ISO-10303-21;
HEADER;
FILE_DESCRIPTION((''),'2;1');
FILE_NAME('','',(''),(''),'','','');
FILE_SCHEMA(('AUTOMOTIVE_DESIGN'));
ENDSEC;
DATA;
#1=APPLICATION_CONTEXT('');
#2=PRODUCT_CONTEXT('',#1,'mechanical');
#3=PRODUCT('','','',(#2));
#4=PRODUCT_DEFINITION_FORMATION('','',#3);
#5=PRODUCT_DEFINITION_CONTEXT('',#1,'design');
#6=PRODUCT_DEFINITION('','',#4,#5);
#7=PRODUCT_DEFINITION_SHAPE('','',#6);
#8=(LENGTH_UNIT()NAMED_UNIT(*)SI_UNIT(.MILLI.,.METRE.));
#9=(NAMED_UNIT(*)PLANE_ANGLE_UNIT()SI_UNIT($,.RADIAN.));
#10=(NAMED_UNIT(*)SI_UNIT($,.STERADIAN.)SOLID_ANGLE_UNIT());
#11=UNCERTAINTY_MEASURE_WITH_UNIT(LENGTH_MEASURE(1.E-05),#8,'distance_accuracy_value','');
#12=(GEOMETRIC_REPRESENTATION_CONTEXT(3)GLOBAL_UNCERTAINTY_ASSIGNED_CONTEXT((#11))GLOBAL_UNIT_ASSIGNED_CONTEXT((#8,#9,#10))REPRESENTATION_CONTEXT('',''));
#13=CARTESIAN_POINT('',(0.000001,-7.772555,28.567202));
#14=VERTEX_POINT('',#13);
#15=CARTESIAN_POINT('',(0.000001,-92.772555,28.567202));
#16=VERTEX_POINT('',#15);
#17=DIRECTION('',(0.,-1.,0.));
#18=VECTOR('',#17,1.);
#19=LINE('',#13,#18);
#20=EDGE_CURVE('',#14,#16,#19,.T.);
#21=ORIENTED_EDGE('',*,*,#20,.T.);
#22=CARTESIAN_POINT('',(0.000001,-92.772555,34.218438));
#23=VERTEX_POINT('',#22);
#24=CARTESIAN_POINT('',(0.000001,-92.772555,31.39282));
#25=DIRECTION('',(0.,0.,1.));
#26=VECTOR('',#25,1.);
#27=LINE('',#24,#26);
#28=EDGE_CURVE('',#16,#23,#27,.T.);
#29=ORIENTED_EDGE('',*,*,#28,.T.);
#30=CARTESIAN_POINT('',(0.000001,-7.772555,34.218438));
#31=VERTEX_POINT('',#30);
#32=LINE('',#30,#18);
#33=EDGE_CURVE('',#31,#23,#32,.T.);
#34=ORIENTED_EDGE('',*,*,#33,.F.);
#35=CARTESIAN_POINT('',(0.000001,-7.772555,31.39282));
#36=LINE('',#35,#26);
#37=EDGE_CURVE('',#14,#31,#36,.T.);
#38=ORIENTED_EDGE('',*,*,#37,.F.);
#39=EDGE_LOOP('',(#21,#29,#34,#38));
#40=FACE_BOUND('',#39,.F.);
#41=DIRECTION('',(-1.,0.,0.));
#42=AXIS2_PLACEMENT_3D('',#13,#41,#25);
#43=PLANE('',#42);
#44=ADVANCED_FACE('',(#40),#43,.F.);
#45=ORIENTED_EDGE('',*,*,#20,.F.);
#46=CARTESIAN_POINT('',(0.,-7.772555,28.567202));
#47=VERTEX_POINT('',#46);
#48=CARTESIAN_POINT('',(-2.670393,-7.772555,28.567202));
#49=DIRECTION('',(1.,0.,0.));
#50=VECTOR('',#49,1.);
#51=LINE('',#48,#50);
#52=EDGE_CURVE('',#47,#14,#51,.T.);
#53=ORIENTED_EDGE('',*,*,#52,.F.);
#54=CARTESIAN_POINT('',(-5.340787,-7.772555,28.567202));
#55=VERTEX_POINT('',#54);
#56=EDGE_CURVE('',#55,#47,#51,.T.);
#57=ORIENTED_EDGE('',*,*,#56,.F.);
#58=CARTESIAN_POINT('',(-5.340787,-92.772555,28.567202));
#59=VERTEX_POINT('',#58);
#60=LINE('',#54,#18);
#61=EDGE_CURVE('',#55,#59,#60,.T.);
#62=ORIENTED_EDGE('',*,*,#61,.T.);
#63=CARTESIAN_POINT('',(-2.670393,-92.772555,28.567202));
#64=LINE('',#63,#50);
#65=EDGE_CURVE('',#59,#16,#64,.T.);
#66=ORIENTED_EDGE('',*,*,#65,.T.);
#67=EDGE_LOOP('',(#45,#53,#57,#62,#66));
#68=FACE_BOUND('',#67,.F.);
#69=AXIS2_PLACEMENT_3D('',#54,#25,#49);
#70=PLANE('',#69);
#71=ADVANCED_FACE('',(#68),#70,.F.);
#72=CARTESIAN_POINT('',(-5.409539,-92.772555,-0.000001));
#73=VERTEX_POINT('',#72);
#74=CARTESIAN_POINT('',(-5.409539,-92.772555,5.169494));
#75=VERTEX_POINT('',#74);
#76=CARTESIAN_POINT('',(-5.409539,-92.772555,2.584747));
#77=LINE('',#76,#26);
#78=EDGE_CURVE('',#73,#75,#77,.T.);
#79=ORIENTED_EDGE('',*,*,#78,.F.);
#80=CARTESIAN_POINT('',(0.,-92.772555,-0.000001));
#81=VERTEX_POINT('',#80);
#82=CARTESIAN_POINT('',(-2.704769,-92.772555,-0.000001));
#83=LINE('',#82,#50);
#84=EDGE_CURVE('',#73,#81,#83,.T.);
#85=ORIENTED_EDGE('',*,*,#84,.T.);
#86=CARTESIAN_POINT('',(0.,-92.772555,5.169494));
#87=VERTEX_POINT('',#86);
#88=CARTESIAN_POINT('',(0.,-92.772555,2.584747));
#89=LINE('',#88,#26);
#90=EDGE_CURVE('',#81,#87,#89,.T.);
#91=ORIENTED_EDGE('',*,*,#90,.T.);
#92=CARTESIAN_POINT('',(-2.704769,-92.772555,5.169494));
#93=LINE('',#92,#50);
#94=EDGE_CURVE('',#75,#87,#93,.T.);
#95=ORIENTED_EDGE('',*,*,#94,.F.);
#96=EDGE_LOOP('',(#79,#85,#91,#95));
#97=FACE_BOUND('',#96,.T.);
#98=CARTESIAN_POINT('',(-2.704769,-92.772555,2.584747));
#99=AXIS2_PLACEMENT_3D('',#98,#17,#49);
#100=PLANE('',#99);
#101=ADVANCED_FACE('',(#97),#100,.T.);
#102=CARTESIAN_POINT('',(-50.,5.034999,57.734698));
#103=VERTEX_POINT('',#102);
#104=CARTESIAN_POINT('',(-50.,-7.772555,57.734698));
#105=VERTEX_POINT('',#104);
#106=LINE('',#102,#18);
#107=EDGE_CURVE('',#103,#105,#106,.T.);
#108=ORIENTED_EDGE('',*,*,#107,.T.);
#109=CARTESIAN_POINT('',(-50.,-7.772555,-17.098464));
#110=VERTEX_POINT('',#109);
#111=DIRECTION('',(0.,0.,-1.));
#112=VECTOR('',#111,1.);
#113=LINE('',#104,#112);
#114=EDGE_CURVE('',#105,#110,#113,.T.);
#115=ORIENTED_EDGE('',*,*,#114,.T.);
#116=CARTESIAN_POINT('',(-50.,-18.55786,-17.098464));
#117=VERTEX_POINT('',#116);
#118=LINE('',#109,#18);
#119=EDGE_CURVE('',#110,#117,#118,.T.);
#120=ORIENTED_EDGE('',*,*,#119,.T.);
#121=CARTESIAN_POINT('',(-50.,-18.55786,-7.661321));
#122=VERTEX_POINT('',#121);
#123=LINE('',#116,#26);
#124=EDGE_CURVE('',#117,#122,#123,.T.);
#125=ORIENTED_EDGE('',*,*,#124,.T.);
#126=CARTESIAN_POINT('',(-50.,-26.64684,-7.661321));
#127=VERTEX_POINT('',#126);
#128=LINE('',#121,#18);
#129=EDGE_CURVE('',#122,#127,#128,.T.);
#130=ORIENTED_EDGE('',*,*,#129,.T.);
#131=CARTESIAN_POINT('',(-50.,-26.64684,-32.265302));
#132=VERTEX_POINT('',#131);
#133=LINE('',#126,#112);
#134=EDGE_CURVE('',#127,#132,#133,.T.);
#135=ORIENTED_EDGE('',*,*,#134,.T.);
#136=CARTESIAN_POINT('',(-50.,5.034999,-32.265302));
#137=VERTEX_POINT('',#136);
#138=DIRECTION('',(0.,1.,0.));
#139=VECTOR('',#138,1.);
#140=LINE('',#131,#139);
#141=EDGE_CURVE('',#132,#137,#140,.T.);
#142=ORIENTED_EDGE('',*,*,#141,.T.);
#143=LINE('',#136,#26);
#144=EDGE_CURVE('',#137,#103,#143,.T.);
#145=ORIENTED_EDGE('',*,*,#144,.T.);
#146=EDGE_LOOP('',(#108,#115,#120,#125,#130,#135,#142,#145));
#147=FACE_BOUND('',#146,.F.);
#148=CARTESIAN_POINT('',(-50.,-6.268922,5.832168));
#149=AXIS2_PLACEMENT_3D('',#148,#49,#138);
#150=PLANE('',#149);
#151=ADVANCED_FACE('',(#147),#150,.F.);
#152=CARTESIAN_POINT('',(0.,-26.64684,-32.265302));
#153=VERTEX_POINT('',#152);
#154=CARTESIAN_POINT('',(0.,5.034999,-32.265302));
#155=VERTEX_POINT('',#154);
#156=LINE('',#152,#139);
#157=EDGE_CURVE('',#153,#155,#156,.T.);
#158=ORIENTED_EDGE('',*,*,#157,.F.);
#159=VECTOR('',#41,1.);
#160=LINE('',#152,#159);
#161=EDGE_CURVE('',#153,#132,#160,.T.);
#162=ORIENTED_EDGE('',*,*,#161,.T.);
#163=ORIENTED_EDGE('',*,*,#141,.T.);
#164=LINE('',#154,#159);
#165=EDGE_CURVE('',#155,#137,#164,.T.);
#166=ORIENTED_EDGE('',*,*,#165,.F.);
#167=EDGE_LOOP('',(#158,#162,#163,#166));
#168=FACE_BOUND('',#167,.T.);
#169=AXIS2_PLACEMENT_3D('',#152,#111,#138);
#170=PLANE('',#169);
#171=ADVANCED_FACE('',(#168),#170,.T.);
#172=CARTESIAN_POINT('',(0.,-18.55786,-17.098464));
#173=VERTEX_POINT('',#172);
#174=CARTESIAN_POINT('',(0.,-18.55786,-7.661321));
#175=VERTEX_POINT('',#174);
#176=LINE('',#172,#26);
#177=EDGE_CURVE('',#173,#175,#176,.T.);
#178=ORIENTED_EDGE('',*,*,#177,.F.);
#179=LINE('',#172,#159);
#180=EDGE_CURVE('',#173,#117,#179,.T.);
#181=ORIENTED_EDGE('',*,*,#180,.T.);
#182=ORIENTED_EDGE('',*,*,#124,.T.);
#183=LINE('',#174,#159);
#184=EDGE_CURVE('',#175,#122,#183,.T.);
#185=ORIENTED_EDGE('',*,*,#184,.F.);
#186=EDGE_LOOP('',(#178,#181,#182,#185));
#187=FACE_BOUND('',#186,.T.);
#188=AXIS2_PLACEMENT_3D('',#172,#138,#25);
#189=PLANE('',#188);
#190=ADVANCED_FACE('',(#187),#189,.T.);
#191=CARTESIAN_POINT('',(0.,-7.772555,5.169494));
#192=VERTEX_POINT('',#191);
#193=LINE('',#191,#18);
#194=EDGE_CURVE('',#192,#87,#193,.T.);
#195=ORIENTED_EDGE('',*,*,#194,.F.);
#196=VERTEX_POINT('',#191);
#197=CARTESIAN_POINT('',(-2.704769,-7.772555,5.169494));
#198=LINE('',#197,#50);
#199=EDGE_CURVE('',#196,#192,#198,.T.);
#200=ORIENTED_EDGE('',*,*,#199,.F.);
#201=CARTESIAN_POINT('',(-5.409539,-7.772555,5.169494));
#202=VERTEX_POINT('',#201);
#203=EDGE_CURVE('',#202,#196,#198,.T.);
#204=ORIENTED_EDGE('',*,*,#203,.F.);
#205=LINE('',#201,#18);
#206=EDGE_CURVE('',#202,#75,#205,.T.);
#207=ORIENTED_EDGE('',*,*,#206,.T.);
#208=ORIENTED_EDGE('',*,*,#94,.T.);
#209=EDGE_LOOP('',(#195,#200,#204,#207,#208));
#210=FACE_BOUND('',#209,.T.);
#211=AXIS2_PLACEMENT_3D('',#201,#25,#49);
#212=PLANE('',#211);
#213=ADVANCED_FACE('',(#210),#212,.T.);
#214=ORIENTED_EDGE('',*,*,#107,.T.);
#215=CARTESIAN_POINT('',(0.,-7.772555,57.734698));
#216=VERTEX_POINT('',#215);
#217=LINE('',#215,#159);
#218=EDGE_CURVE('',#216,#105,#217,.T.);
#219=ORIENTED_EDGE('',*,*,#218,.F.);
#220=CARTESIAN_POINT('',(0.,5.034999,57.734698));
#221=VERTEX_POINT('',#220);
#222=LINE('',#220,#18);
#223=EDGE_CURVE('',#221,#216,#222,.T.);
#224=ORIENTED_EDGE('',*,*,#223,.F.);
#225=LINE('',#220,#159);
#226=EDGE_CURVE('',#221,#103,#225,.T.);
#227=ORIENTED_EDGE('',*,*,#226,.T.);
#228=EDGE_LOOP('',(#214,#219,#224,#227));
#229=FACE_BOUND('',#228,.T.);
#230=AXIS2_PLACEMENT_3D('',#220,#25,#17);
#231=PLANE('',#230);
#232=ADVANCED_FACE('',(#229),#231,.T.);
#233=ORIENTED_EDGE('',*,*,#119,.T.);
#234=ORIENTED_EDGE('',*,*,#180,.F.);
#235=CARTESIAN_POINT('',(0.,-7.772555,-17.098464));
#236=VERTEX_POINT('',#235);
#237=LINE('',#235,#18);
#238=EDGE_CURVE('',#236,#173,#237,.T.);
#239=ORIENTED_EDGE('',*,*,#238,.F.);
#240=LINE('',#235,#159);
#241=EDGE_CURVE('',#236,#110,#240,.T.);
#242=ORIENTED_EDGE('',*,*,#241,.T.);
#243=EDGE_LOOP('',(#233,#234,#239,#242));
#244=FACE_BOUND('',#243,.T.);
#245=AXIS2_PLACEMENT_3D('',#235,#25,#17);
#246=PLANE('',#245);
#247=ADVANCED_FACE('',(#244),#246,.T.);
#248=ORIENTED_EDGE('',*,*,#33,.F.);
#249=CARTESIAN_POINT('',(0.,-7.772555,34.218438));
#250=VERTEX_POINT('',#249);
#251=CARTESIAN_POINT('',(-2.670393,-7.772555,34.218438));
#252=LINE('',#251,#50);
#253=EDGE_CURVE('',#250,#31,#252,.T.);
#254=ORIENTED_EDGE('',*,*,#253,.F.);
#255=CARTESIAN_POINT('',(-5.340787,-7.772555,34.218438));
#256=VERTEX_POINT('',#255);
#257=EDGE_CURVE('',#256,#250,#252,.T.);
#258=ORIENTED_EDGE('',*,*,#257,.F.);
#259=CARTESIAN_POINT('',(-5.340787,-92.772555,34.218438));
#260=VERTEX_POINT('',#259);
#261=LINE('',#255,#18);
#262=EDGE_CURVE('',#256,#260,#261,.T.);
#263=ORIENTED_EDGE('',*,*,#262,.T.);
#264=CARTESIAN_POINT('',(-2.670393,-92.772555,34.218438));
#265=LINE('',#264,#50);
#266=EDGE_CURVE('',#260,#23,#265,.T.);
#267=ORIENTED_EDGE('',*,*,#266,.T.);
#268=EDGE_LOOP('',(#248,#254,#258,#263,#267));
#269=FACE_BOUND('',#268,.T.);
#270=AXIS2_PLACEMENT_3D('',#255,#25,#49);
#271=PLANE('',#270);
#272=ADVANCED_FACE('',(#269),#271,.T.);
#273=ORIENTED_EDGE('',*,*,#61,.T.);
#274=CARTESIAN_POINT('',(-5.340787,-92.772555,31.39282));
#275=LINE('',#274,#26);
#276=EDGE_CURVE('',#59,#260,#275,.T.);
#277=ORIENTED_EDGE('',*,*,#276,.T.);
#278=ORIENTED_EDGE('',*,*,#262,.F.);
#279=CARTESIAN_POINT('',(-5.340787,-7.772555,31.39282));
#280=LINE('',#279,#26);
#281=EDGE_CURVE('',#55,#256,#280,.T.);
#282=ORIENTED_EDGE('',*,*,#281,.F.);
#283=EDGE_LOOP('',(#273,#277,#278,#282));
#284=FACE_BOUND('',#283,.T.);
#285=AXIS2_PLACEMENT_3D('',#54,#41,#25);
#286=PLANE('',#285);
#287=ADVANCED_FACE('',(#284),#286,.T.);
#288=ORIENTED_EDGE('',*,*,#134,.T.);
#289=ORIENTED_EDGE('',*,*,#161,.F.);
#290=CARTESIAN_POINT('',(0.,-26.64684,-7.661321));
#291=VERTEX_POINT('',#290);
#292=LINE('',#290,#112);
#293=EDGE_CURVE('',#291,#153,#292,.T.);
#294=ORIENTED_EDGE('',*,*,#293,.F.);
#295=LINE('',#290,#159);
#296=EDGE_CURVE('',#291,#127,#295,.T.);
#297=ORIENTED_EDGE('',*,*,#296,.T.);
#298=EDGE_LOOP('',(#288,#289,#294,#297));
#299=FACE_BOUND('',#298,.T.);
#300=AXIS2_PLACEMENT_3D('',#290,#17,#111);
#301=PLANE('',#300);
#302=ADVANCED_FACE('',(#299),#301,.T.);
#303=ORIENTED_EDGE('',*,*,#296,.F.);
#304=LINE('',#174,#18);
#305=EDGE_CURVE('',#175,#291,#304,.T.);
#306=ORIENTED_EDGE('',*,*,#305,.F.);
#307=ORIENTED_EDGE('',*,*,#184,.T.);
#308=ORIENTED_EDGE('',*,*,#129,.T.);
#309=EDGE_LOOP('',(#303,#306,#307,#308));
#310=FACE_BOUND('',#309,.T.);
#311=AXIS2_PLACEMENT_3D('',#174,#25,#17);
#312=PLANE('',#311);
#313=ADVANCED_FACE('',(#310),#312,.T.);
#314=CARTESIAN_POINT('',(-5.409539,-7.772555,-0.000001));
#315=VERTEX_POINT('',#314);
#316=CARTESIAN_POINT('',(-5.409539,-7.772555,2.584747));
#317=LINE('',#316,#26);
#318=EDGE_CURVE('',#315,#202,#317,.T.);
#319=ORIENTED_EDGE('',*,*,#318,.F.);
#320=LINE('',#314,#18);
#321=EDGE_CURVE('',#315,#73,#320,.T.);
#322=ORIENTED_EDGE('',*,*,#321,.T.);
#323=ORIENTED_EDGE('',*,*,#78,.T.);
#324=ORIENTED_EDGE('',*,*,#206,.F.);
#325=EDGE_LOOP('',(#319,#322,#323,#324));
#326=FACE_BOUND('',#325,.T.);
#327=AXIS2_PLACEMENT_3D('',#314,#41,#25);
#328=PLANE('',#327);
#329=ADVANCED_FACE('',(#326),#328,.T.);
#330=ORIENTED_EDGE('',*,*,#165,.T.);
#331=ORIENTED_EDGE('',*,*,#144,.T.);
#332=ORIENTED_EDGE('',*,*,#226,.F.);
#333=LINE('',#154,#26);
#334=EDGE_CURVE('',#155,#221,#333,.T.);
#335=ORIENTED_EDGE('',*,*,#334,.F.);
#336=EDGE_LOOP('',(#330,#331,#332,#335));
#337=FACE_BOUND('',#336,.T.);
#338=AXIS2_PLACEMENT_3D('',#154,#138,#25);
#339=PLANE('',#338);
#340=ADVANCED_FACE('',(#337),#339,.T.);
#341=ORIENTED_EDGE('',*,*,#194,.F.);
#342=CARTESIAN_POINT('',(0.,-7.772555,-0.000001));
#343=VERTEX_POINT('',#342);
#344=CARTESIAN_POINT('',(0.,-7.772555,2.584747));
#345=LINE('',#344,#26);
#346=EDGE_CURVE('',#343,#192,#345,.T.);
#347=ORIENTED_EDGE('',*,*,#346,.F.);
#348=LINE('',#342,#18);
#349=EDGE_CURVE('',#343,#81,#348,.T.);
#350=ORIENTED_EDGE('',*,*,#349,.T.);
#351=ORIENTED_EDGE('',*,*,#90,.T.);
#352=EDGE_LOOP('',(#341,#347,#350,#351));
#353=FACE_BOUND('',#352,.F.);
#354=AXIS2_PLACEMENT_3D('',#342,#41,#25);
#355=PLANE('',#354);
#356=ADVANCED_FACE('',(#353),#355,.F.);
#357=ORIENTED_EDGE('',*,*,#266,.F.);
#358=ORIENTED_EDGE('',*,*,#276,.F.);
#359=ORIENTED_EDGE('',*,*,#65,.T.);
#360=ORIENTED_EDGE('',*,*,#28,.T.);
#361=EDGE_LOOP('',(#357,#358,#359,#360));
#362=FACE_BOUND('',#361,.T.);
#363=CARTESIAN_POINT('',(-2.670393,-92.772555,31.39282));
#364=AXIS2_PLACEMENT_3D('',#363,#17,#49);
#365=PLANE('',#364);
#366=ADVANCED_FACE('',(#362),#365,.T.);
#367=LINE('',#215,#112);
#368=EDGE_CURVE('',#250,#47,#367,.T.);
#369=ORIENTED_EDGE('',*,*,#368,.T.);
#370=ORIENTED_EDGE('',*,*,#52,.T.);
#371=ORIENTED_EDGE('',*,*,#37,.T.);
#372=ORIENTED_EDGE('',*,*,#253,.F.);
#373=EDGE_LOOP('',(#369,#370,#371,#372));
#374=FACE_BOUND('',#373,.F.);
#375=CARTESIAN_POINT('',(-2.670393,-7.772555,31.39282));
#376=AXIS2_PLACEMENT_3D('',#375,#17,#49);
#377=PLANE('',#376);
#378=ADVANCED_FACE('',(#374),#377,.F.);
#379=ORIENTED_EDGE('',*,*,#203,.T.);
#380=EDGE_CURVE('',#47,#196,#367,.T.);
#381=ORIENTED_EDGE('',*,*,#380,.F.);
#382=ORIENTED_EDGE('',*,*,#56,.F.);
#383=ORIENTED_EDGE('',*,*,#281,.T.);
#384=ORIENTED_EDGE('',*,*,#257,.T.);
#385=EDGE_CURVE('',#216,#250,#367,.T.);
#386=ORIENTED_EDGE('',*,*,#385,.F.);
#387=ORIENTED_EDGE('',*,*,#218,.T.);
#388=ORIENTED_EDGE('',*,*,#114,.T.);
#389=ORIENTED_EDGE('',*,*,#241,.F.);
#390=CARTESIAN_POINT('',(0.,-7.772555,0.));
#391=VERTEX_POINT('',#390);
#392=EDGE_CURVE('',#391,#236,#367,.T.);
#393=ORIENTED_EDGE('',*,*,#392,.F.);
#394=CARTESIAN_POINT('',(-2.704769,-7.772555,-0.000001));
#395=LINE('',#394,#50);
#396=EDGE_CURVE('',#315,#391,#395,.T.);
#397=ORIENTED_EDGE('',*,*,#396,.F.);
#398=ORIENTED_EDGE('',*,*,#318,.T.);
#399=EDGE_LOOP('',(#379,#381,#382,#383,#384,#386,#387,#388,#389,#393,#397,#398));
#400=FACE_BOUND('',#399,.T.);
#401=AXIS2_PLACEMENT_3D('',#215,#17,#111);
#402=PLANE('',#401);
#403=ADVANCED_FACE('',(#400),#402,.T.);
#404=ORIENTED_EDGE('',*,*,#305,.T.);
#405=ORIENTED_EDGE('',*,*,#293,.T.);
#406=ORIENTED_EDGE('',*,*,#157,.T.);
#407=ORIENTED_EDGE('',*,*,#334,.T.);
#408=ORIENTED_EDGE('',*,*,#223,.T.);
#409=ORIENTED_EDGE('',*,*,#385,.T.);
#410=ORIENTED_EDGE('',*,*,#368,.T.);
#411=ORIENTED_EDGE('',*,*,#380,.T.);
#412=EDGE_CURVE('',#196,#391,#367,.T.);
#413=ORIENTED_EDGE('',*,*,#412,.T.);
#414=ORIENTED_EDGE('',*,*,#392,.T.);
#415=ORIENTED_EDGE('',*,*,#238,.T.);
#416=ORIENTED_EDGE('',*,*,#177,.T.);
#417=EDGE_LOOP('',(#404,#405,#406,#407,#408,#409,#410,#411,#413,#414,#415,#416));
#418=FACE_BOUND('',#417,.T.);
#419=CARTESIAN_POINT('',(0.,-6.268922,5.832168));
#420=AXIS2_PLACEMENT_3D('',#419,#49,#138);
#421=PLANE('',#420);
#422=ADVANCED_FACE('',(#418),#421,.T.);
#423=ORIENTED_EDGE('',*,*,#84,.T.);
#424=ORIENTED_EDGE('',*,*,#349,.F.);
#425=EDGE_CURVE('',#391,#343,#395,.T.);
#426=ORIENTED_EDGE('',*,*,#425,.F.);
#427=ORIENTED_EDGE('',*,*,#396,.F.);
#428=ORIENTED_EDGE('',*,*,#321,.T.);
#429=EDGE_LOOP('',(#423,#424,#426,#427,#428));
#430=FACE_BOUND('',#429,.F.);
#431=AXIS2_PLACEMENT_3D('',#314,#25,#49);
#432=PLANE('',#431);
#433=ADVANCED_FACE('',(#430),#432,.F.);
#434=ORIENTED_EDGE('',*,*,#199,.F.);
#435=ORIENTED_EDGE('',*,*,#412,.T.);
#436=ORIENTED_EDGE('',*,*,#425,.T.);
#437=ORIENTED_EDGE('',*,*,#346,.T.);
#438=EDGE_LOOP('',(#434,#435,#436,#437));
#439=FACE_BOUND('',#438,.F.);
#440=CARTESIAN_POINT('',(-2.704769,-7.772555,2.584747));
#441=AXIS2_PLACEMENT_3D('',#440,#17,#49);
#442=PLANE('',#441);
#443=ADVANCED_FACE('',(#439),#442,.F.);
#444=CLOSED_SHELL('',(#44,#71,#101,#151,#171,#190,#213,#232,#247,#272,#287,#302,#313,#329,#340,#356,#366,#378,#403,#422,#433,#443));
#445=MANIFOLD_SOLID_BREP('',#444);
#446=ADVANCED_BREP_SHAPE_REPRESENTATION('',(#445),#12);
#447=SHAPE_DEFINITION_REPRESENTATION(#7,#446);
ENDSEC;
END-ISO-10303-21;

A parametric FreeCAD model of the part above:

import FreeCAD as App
import Part
import Sketcher
from FreeCAD import Vector


def add_polygon(sketch, points):
    """Adds a closed chain of lines whose ends are joined by coincident constraints."""
    first, n = sketch.GeometryCount, len(points)
    for a, b in zip(points, points[1:] + points[:1]):
        sketch.addGeometry(Part.LineSegment(App.Vector(*a, 0), App.Vector(*b, 0)), False)
    for i in range(n):
        sketch.addConstraint(Sketcher.Constraint("Coincident", first + i, 2, first + (i + 1) % n, 1))

doc = App.newDocument("Part")
body = doc.addObject("PartDesign::Body", "Body")

sketch1 = body.newObject("Sketcher::SketchObject", "Sketch")
sketch1.AttachmentSupport = (doc.getObject("YZ_Plane"), [""])
sketch1.MapMode = "FlatFace"
add_polygon(sketch1, [(5.034999, -32.265302), (5.034999, 57.734698), (-7.772555, 57.734698), (-7.772555, -17.098464), (-18.55786, -17.098464), (-18.55786, -7.661321), (-26.64684, -7.661321), (-26.64684, -32.265302)])
sketch1.addConstraint(Sketcher.Constraint("Vertical", 0))
sketch1.addConstraint(Sketcher.Constraint("Horizontal", 1))
sketch1.addConstraint(Sketcher.Constraint("Vertical", 2))
sketch1.addConstraint(Sketcher.Constraint("Horizontal", 3))
sketch1.addConstraint(Sketcher.Constraint("Vertical", 4))
sketch1.addConstraint(Sketcher.Constraint("Horizontal", 5))
sketch1.addConstraint(Sketcher.Constraint("Vertical", 6))
sketch1.addConstraint(Sketcher.Constraint("Horizontal", 7))
sketch1.addConstraint(Sketcher.Constraint("DistanceY", 0, 1, 0, 2, 90.0))
sketch1.addConstraint(Sketcher.Constraint("DistanceX", -1, 1, 0, 2, 5.034999))
sketch1.addConstraint(Sketcher.Constraint("DistanceX", 5, 2, 5, 1, 8.08898))
sketch1.addConstraint(Sketcher.Constraint("DistanceX", 7, 1, 7, 2, 31.681839))
sketch1.addConstraint(Sketcher.Constraint("DistanceY", 2, 2, 2, 1, 74.833162))
sketch1.addConstraint(Sketcher.Constraint("DistanceY", 6, 2, 6, 1, 24.603981))
sketch1.addConstraint(Sketcher.Constraint("DistanceY", -1, 1, 0, 2, 57.734698))
sketch1.addConstraint(Sketcher.Constraint("DistanceX", 1, 2, 1, 1, 12.807554))
pad1 = body.newObject("PartDesign::Pad", "Pad")
pad1.Profile = sketch1
pad1.Length = 50
pad1.Reversed = True

sketch2 = body.newObject("Sketcher::SketchObject", "Sketch001")
sketch2.AttachmentSupport = (doc.getObject("XZ_Plane"), [""])
sketch2.MapMode = "FlatFace"
sketch2.AttachmentOffset = App.Placement(Vector(0, 0, 7.772555), App.Rotation())
add_polygon(sketch2, [(-5.340787, 34.218438), (-5.340787, 28.567202), (0, 28.567202), (0, 34.218438)])
add_polygon(sketch2, [(-5.409539, 5.169494), (-5.409539, 0), (0, 0), (0, 5.169494)])
sketch2.addConstraint(Sketcher.Constraint("Vertical", 0))
sketch2.addConstraint(Sketcher.Constraint("Horizontal", 1))
sketch2.addConstraint(Sketcher.Constraint("Vertical", 2))
sketch2.addConstraint(Sketcher.Constraint("Horizontal", 3))
sketch2.addConstraint(Sketcher.Constraint("Vertical", 4))
sketch2.addConstraint(Sketcher.Constraint("Horizontal", 5))
sketch2.addConstraint(Sketcher.Constraint("Vertical", 6))
sketch2.addConstraint(Sketcher.Constraint("Horizontal", 7))
sketch2.addConstraint(Sketcher.Constraint("Coincident", 5, 2, -1, 1))
sketch2.addConstraint(Sketcher.Constraint("PointOnObject", 1, 2, -2))
sketch2.addConstraint(Sketcher.Constraint("DistanceX", 5, 1, 5, 2, 5.409539))
sketch2.addConstraint(Sketcher.Constraint("DistanceX", 1, 1, 1, 2, 5.340787))
sketch2.addConstraint(Sketcher.Constraint("DistanceY", 0, 2, 0, 1, 5.651236))
sketch2.addConstraint(Sketcher.Constraint("DistanceY", 4, 2, 4, 1, 5.169495))
sketch2.addConstraint(Sketcher.Constraint("DistanceY", 4, 2, 3, 2, 34.218438))
pad2 = body.newObject("PartDesign::Pad", "Pad001")
pad2.Profile = sketch2
pad2.Length = 85

doc.recompute()
